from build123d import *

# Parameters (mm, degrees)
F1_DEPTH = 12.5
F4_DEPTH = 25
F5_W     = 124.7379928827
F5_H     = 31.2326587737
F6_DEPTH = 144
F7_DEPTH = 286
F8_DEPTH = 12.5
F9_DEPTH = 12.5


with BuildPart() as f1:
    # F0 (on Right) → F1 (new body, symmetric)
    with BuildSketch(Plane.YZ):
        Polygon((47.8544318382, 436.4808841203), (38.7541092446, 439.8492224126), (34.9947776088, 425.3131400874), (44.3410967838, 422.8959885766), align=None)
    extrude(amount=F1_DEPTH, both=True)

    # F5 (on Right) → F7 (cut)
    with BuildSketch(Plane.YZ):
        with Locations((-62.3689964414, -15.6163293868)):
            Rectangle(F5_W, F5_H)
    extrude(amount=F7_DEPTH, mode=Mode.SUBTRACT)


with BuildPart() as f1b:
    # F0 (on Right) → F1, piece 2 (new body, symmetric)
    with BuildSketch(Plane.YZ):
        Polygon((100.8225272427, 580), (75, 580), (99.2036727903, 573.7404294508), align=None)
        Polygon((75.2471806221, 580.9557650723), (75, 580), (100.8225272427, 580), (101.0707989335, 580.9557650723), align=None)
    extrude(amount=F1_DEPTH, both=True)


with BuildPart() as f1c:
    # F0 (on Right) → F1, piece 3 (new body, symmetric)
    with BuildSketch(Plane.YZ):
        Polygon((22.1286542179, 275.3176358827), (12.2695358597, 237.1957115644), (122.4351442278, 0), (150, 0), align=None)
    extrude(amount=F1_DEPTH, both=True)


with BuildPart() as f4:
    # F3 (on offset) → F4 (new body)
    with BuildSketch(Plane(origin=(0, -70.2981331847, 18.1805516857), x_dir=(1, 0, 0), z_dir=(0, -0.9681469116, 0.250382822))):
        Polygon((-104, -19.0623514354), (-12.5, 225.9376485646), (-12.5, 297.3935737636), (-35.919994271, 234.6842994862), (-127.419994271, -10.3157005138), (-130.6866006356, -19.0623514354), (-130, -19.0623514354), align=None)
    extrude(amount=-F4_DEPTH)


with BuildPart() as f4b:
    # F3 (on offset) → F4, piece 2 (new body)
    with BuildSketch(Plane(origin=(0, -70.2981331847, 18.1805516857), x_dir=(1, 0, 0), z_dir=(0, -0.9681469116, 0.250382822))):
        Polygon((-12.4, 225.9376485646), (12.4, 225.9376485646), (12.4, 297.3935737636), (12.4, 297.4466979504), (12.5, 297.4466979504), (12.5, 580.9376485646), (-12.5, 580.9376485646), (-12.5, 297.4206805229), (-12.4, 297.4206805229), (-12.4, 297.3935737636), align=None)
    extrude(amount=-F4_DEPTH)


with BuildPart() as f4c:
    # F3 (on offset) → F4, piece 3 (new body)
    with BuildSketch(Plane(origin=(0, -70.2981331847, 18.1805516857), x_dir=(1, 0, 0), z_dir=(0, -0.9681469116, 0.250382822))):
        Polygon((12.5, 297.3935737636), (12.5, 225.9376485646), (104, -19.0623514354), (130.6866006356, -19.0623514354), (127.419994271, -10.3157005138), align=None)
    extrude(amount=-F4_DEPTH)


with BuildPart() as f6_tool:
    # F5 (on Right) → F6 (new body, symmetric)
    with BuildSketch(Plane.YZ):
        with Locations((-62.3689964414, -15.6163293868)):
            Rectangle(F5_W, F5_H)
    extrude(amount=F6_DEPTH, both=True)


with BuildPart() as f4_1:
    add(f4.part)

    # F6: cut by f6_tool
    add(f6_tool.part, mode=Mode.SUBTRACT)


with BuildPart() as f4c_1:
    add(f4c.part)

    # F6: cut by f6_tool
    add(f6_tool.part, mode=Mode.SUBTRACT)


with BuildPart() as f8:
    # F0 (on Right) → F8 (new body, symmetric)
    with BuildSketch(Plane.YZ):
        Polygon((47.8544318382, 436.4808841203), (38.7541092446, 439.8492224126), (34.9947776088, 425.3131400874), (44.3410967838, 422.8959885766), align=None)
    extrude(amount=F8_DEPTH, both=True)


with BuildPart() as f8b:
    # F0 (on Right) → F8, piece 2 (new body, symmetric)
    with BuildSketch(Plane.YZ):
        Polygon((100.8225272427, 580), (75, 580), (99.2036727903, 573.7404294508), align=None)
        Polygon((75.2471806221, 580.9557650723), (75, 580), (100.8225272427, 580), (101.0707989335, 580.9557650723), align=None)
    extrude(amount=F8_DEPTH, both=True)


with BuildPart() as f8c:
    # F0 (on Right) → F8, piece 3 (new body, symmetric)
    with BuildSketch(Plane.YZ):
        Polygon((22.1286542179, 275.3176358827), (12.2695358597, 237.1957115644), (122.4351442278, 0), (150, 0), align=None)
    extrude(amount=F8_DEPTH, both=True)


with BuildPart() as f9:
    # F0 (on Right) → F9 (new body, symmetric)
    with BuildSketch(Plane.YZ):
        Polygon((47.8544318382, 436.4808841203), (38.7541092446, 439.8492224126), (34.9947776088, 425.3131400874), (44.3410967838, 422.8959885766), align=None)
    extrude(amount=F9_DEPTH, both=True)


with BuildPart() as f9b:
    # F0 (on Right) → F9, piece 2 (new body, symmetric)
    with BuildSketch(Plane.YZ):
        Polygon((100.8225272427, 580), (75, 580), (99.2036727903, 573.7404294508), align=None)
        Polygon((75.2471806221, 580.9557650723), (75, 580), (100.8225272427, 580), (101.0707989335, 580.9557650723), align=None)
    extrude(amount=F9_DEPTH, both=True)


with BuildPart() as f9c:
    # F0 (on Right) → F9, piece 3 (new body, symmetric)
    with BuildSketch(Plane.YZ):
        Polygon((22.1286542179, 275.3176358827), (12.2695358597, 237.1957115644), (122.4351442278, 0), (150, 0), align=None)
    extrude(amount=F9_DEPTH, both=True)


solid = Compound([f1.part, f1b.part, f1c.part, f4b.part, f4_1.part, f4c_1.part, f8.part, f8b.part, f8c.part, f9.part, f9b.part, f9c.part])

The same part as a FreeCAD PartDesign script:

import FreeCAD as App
import Part
import Sketcher
from FreeCAD import Vector
Q = App.Units.Quantity

doc = App.newDocument("Part")
body = doc.addObject("PartDesign::Body", "Body")

# Sketch on YZ plane
sketch1 = doc.addObject("Sketcher::SketchObject", "Sketch")
body.addObject(sketch1)
sketch1.AttachmentSupport = (doc.YZ_Plane, [""])
sketch1.MapMode = "FlatFace"
sketch1.addGeometry([
    Part.LineSegment(Vector(47.854432, 436.480884, 0), Vector(38.754109, 439.849222, 0)),
    Part.LineSegment(Vector(38.754109, 439.849222, 0), Vector(34.994778, 425.31314, 0)),
    Part.LineSegment(Vector(34.994778, 425.31314, 0), Vector(44.341097, 422.895989, 0)),
    Part.LineSegment(Vector(44.341097, 422.895989, 0), Vector(47.854432, 436.480884, 0)),
], False)
sketch1.addConstraint([
    Sketcher.Constraint("Coincident", 0, 2, 1, 1),
    Sketcher.Constraint("Coincident", 1, 2, 2, 1),
    Sketcher.Constraint("Coincident", 2, 2, 3, 1),
    Sketcher.Constraint("Coincident", 3, 2, 0, 1),
    Sketcher.Constraint("Perpendicular", 1, 2),
    Sketcher.Constraint("Perpendicular", 2, 3),
    Sketcher.Constraint("Distance", 0, Q("9.703689 mm")),
    Sketcher.Constraint("DistanceX", -1, 1, 0, 2, Q("38.754109 mm")),
    Sketcher.Constraint("DistanceY", -1, 1, 1, 2, Q("425.31314 mm")),
    Sketcher.Constraint("DistanceY", -1, 1, 2, 2, Q("422.895989 mm")),
    Sketcher.Constraint("DistanceX", -1, 1, 3, 2, Q("47.854432 mm")),
    Sketcher.Constraint("DistanceX", 1, 2, 0, 2, Q("3.759332 mm")),
])
pad1 = doc.addObject("PartDesign::Pad", "Pad")
body.addObject(pad1)
pad1.Profile = sketch1
pad1.Length = 25
pad1.Midplane = True

# Sketch on YZ plane
sketch2 = doc.addObject("Sketcher::SketchObject", "Sketch001")
body.addObject(sketch2)
sketch2.AttachmentSupport = (doc.YZ_Plane, [""])
sketch2.MapMode = "FlatFace"
sketch2.addGeometry([
    Part.LineSegment(Vector(-124.737993, 0, 0), Vector(-124.737993, -31.232659, 0)),
    Part.LineSegment(Vector(-124.737993, -31.232659, 0), Vector(0, -31.232659, 0)),
    Part.LineSegment(Vector(0, -31.232659, 0), Vector(0, 0, 0)),
    Part.LineSegment(Vector(0, 0, 0), Vector(-124.737993, 0, 0)),
], False)
sketch2.addConstraint([
    Sketcher.Constraint("Coincident", 0, 2, 1, 1),
    Sketcher.Constraint("Coincident", 1, 2, 2, 1),
    Sketcher.Constraint("Coincident", 2, 2, 3, 1),
    Sketcher.Constraint("Coincident", 3, 2, 0, 1),
    Sketcher.Constraint("Vertical", 0),
    Sketcher.Constraint("Horizontal", 1),
    Sketcher.Constraint("Vertical", 2),
    Sketcher.Constraint("Horizontal", 3),
    Sketcher.Constraint("Coincident", 2, 2, -1, 1),
    Sketcher.Constraint("DistanceY", 0, 2, 0, 1, Q("31.232659 mm")),
    Sketcher.Constraint("DistanceX", 1, 1, 1, 2, Q("124.737993 mm")),
])
pocket1 = doc.addObject("PartDesign::Pocket", "Pocket")
body.addObject(pocket1)
pocket1.Profile = sketch2
pocket1.Length = 286
pocket1.Reversed = True
body2 = doc.addObject("PartDesign::Body", "Body001")

# Sketch on YZ plane
sketch3 = doc.addObject("Sketcher::SketchObject", "Sketch002")
body2.addObject(sketch3)
sketch3.AttachmentSupport = (doc.getObject("YZ_Plane001"), [""])
sketch3.MapMode = "FlatFace"
sketch3.addGeometry([
    Part.LineSegment(Vector(75, 580, 0), Vector(99.203673, 573.740429, 0)),  # 0
    Part.LineSegment(Vector(99.203673, 573.740429, 0), Vector(100.822527, 580, 0)),  # 1
    Part.LineSegment(Vector(100.822527, 580, 0), Vector(101.070799, 580.955765, 0)),  # 2
    Part.LineSegment(Vector(101.070799, 580.955765, 0), Vector(75.247181, 580.955765, 0)),  # 3
    Part.LineSegment(Vector(75.247181, 580.955765, 0), Vector(75, 580, 0)),  # 4
], False)
sketch3.addConstraint([
    Sketcher.Constraint("Coincident", 0, 2, 1, 1),
    Sketcher.Constraint("Coincident", 1, 2, 2, 1),
    Sketcher.Constraint("Coincident", 2, 2, 3, 1),
    Sketcher.Constraint("Coincident", 3, 2, 4, 1),
    Sketcher.Constraint("Coincident", 4, 2, 0, 1),
    Sketcher.Constraint("Horizontal", 3),
    Sketcher.Constraint("Perpendicular", 0, 1),
    Sketcher.Constraint("Parallel", 1, 4),
    Sketcher.Constraint("Horizontal", 1, 2, 4, 2),
    Sketcher.Constraint("Distance", 0, Q("25 mm")),
    Sketcher.Constraint("DistanceY", -1, 1, 1, 2, Q("580 mm")),
    Sketcher.Constraint("DistanceX", -1, 1, 4, 2, Q("75 mm")),
    Sketcher.Constraint("DistanceX", 3, 2, 3, 1, Q("25.823618 mm")),
    Sketcher.Constraint("DistanceX", -1, 1, 2, 2, Q("101.070799 mm")),
    Sketcher.Constraint("Distance", 4, Q("0.987211 mm")),
])
pad2 = doc.addObject("PartDesign::Pad", "Pad001")
body2.addObject(pad2)
pad2.Profile = sketch3
pad2.Length = 25
pad2.Midplane = True
body3 = doc.addObject("PartDesign::Body", "Body002")

# Sketch on YZ plane
sketch4 = doc.addObject("Sketcher::SketchObject", "Sketch003")
body3.addObject(sketch4)
sketch4.AttachmentSupport = (doc.getObject("YZ_Plane002"), [""])
sketch4.MapMode = "FlatFace"
sketch4.addGeometry([
    Part.LineSegment(Vector(22.128654, 275.317636, 0), Vector(12.269536, 237.195712, 0)),
    Part.LineSegment(Vector(12.269536, 237.195712, 0), Vector(122.435144, 0, 0)),
    Part.LineSegment(Vector(122.435144, 0, 0), Vector(150, 0, 0)),
    Part.LineSegment(Vector(150, 0, 0), Vector(22.128654, 275.317636, 0)),
], False)
sketch4.addConstraint([
    Sketcher.Constraint("Coincident", 0, 2, 1, 1),
    Sketcher.Constraint("Coincident", 1, 2, 2, 1),
    Sketcher.Constraint("Coincident", 2, 2, 3, 1),
    Sketcher.Constraint("Coincident", 3, 2, 0, 1),
    Sketcher.Constraint("Horizontal", 2),
    Sketcher.Constraint("PointOnObject", 1, 2, -1),
    Sketcher.Constraint("Parallel", 1, 3),
    Sketcher.Constraint("DistanceX", -1, 1, 2, 2, Q("150 mm")),
    Sketcher.Constraint("DistanceX", 2, 1, 2, 2, Q("27.564856 mm")),
    Sketcher.Constraint("DistanceY", -1, 1, 0, 2, Q("237.195712 mm")),
    Sketcher.Constraint("DistanceX", 0, 2, 1, 2, Q("110.165608 mm")),
    Sketcher.Constraint("DistanceX", 0, 2, 3, 2, Q("9.859118 mm")),
])
pad3 = doc.addObject("PartDesign::Pad", "Pad002")
body3.addObject(pad3)
pad3.Profile = sketch4
pad3.Length = 25
pad3.Midplane = True
body4 = doc.addObject("PartDesign::Body", "Body003")

# Sketch on an angled plane
sketch5 = doc.addObject("Sketcher::SketchObject", "Sketch004")
body4.addObject(sketch5)
sketch5.Placement = App.Placement(Vector(0, -70.298133, 18.180552), App.Rotation(Vector(1, 0, 0), Vector(0, 0.250382822, 0.968146912), Vector(0, -0.968146912, 0.250382822), "ZXY"))
sketch5.addGeometry([
    Part.LineSegment(Vector(-104, -19.062351, 0), Vector(-12.5, 225.937649, 0)),
    Part.LineSegment(Vector(-12.5, 225.937649, 0), Vector(-12.5, 297.393574, 0)),
    Part.LineSegment(Vector(-12.5, 297.393574, 0), Vector(-130.686601, -19.062351, 0)),
    Part.LineSegment(Vector(-130.686601, -19.062351, 0), Vector(-104, -19.062351, 0)),
], False)
sketch5.addConstraint([
    Sketcher.Constraint("Coincident", 0, 2, 1, 1),
    Sketcher.Constraint("Coincident", 1, 2, 2, 1),
    Sketcher.Constraint("Coincident", 2, 2, 3, 1),
    Sketcher.Constraint("Coincident", 3, 2, 0, 1),
    Sketcher.Constraint("Vertical", 1),
    Sketcher.Constraint("Horizontal", 3),
    Sketcher.Constraint("Parallel", 0, 2),
    Sketcher.Constraint("DistanceX", 3, 2, -1, 1, Q("104 mm")),
    Sketcher.Constraint("DistanceY", 2, 2, 0, 2, Q("245 mm")),
    Sketcher.Constraint("DistanceX", 0, 2, -1, 1, Q("12.5 mm")),
    Sketcher.Constraint("DistanceX", 3, 1, 3, 2, Q("26.686601 mm")),
    Sketcher.Constraint("DistanceY", -1, 1, 0, 2, Q("225.937649 mm")),
])
pad4 = doc.addObject("PartDesign::Pad", "Pad003")
body4.addObject(pad4)
pad4.Profile = sketch5
pad4.Length = 25
pad4.Reversed = True
body5 = doc.addObject("PartDesign::Body", "Body004")

# Sketch on an angled plane
sketch6 = doc.addObject("Sketcher::SketchObject", "Sketch005")
body5.addObject(sketch6)
sketch6.Placement = App.Placement(Vector(0, -70.298133, 18.180552), App.Rotation(Vector(1, 0, 0), Vector(0, 0.250382822, 0.968146912), Vector(0, -0.968146912, 0.250382822), "ZXY"))
sketch6.addGeometry([
    Part.LineSegment(Vector(-12.4, 225.937649, 0), Vector(12.4, 225.937649, 0)),  # 0
    Part.LineSegment(Vector(12.4, 225.937649, 0), Vector(12.4, 297.446698, 0)),  # 1
    Part.LineSegment(Vector(12.4, 297.446698, 0), Vector(12.5, 297.446698, 0)),  # 2
    Part.LineSegment(Vector(12.5, 297.446698, 0), Vector(12.5, 580.937649, 0)),  # 3
    Part.LineSegment(Vector(12.5, 580.937649, 0), Vector(-12.5, 580.937649, 0)),  # 4
    Part.LineSegment(Vector(-12.5, 580.937649, 0), Vector(-12.5, 297.420681, 0)),  # 5
    Part.LineSegment(Vector(-12.5, 297.420681, 0), Vector(-12.4, 297.420681, 0)),  # 6
    Part.LineSegment(Vector(-12.4, 297.420681, 0), Vector(-12.4, 225.937649, 0)),  # 7
], False)
sketch6.addConstraint([
    Sketcher.Constraint("Coincident", 0, 2, 1, 1),
    Sketcher.Constraint("Coincident", 1, 2, 2, 1),
    Sketcher.Constraint("Coincident", 2, 2, 3, 1),
    Sketcher.Constraint("Coincident", 3, 2, 4, 1),
    Sketcher.Constraint("Coincident", 4, 2, 5, 1),
    Sketcher.Constraint("Coincident", 5, 2, 6, 1),
    Sketcher.Constraint("Coincident", 6, 2, 7, 1),
    Sketcher.Constraint("Coincident", 7, 2, 0, 1),
    Sketcher.Constraint("Horizontal", 0),
    Sketcher.Constraint("Vertical", 1),
    Sketcher.Constraint("Horizontal", 2),
    Sketcher.Constraint("Vertical", 3),
    Sketcher.Constraint("Horizontal", 4),
    Sketcher.Constraint("Vertical", 5),
    Sketcher.Constraint("Horizontal", 6),
    Sketcher.Constraint("Vertical", 7),
    Sketcher.Constraint("Equal", 2, 6),
    Sketcher.Constraint("DistanceX", 4, 2, 4, 1, Q("25 mm")),
    Sketcher.Constraint("DistanceX", 0, 1, 0, 2, Q("24.8 mm")),
    Sketcher.Constraint("DistanceY", 0, 2, 3, 2, Q("355 mm")),
    Sketcher.Constraint("DistanceX", -1, 1, 0, 2, Q("12.4 mm")),
    Sketcher.Constraint("DistanceY", 1, 1, 1, 2, Q("71.509049 mm")),
    Sketcher.Constraint("DistanceY", 5, 2, 5, 1, Q("283.516968 mm")),
    Sketcher.Constraint("DistanceY", -1, 1, 1, 2, Q("297.446698 mm")),
])
pad5 = doc.addObject("PartDesign::Pad", "Pad004")
body5.addObject(pad5)
pad5.Profile = sketch6
pad5.Length = 25
pad5.Reversed = True
body6 = doc.addObject("PartDesign::Body", "Body005")

# Sketch on an angled plane
sketch7 = doc.addObject("Sketcher::SketchObject", "Sketch006")
body6.addObject(sketch7)
sketch7.Placement = App.Placement(Vector(0, -70.298133, 18.180552), App.Rotation(Vector(1, 0, 0), Vector(0, 0.250382822, 0.968146912), Vector(0, -0.968146912, 0.250382822), "ZXY"))
sketch7.addGeometry([
    Part.LineSegment(Vector(12.5, 297.393574, 0), Vector(12.5, 225.937649, 0)),
    Part.LineSegment(Vector(12.5, 225.937649, 0), Vector(104, -19.062351, 0)),
    Part.LineSegment(Vector(104, -19.062351, 0), Vector(130.686601, -19.062351, 0)),
    Part.LineSegment(Vector(130.686601, -19.062351, 0), Vector(12.5, 297.393574, 0)),
], False)
sketch7.addConstraint([
    Sketcher.Constraint("Coincident", 0, 2, 1, 1),
    Sketcher.Constraint("Coincident", 1, 2, 2, 1),
    Sketcher.Constraint("Coincident", 2, 2, 3, 1),
    Sketcher.Constraint("Coincident", 3, 2, 0, 1),
    Sketcher.Constraint("Vertical", 0),
    Sketcher.Constraint("Horizontal", 2),
    Sketcher.Constraint("Parallel", 1, 3),
    Sketcher.Constraint("DistanceX", -1, 1, 1, 2, Q("104 mm")),
    Sketcher.Constraint("DistanceY", 1, 2, 0, 2, Q("245 mm")),
    Sketcher.Constraint("DistanceX", -1, 1, 0, 2, Q("12.5 mm")),
    Sketcher.Constraint("DistanceX", 2, 1, 2, 2, Q("26.686601 mm")),
    Sketcher.Constraint("DistanceY", -1, 1, 0, 2, Q("225.937649 mm")),
])
pad6 = doc.addObject("PartDesign::Pad", "Pad005")
body6.addObject(pad6)
pad6.Profile = sketch7
pad6.Length = 25
pad6.Reversed = True
body7 = doc.addObject("PartDesign::Body", "Body006")

# Sketch on YZ plane
sketch8 = doc.addObject("Sketcher::SketchObject", "Sketch007")
body7.addObject(sketch8)
sketch8.AttachmentSupport = (doc.getObject("YZ_Plane006"), [""])
sketch8.MapMode = "FlatFace"
sketch8.addGeometry([
    Part.LineSegment(Vector(-124.737993, 0, 0), Vector(-124.737993, -31.232659, 0)),
    Part.LineSegment(Vector(-124.737993, -31.232659, 0), Vector(0, -31.232659, 0)),
    Part.LineSegment(Vector(0, -31.232659, 0), Vector(0, 0, 0)),
    Part.LineSegment(Vector(0, 0, 0), Vector(-124.737993, 0, 0)),
], False)
sketch8.addConstraint([
    Sketcher.Constraint("Coincident", 0, 2, 1, 1),
    Sketcher.Constraint("Coincident", 1, 2, 2, 1),
    Sketcher.Constraint("Coincident", 2, 2, 3, 1),
    Sketcher.Constraint("Coincident", 3, 2, 0, 1),
    Sketcher.Constraint("Vertical", 0),
    Sketcher.Constraint("Horizontal", 1),
    Sketcher.Constraint("Vertical", 2),
    Sketcher.Constraint("Horizontal", 3),
    Sketcher.Constraint("Coincident", 2, 2, -1, 1),
    Sketcher.Constraint("DistanceY", 0, 2, 0, 1, Q("31.232659 mm")),
    Sketcher.Constraint("DistanceX", 1, 1, 1, 2, Q("124.737993 mm")),
])
pad7 = doc.addObject("PartDesign::Pad", "Pad006")
body7.addObject(pad7)
pad7.Profile = sketch8
pad7.Length = 288
pad7.Midplane = True
doc.recompute()

body8 = doc.addObject("PartDesign::Body", "Body007")
body8.BaseFeature = body7
boolean = doc.addObject("PartDesign::Boolean", "Boolean")
body4.addObject(boolean)
boolean.Type = "Cut"
boolean.addObjects([body8])
doc.recompute()

boolean2 = doc.addObject("PartDesign::Boolean", "Boolean001")
body6.addObject(boolean2)
boolean2.Type = "Cut"
boolean2.addObjects([body7])
body9 = doc.addObject("PartDesign::Body", "Body008")

# Sketch on YZ plane
sketch9 = doc.addObject("Sketcher::SketchObject", "Sketch008")
body9.addObject(sketch9)
sketch9.AttachmentSupport = (doc.getObject("YZ_Plane008"), [""])
sketch9.MapMode = "FlatFace"
sketch9.addGeometry([
    Part.LineSegment(Vector(47.854432, 436.480884, 0), Vector(38.754109, 439.849222, 0)),
    Part.LineSegment(Vector(38.754109, 439.849222, 0), Vector(34.994778, 425.31314, 0)),
    Part.LineSegment(Vector(34.994778, 425.31314, 0), Vector(44.341097, 422.895989, 0)),
    Part.LineSegment(Vector(44.341097, 422.895989, 0), Vector(47.854432, 436.480884, 0)),
], False)
sketch9.addConstraint([
    Sketcher.Constraint("Coincident", 0, 2, 1, 1),
    Sketcher.Constraint("Coincident", 1, 2, 2, 1),
    Sketcher.Constraint("Coincident", 2, 2, 3, 1),
    Sketcher.Constraint("Coincident", 3, 2, 0, 1),
    Sketcher.Constraint("Perpendicular", 1, 2),
    Sketcher.Constraint("Perpendicular", 2, 3),
    Sketcher.Constraint("Distance", 0, Q("9.703689 mm")),
    Sketcher.Constraint("DistanceX", -1, 1, 0, 2, Q("38.754109 mm")),
    Sketcher.Constraint("DistanceY", -1, 1, 1, 2, Q("425.31314 mm")),
    Sketcher.Constraint("DistanceY", -1, 1, 2, 2, Q("422.895989 mm")),
    Sketcher.Constraint("DistanceX", -1, 1, 3, 2, Q("47.854432 mm")),
    Sketcher.Constraint("DistanceX", 1, 2, 0, 2, Q("3.759332 mm")),
])
pad8 = doc.addObject("PartDesign::Pad", "Pad007")
body9.addObject(pad8)
pad8.Profile = sketch9
pad8.Length = 25
pad8.Midplane = True
body10 = doc.addObject("PartDesign::Body", "Body009")

# Sketch on YZ plane
sketch10 = doc.addObject("Sketcher::SketchObject", "Sketch009")
body10.addObject(sketch10)
sketch10.AttachmentSupport = (doc.getObject("YZ_Plane009"), [""])
sketch10.MapMode = "FlatFace"
sketch10.addGeometry([
    Part.LineSegment(Vector(75, 580, 0), Vector(99.203673, 573.740429, 0)),  # 0
    Part.LineSegment(Vector(99.203673, 573.740429, 0), Vector(100.822527, 580, 0)),  # 1
    Part.LineSegment(Vector(100.822527, 580, 0), Vector(101.070799, 580.955765, 0)),  # 2
    Part.LineSegment(Vector(101.070799, 580.955765, 0), Vector(75.247181, 580.955765, 0)),  # 3
    Part.LineSegment(Vector(75.247181, 580.955765, 0), Vector(75, 580, 0)),  # 4
], False)
sketch10.addConstraint([
    Sketcher.Constraint("Coincident", 0, 2, 1, 1),
    Sketcher.Constraint("Coincident", 1, 2, 2, 1),
    Sketcher.Constraint("Coincident", 2, 2, 3, 1),
    Sketcher.Constraint("Coincident", 3, 2, 4, 1),
    Sketcher.Constraint("Coincident", 4, 2, 0, 1),
    Sketcher.Constraint("Horizontal", 3),
    Sketcher.Constraint("Perpendicular", 0, 1),
    Sketcher.Constraint("Parallel", 1, 4),
    Sketcher.Constraint("Horizontal", 1, 2, 4, 2),
    Sketcher.Constraint("Distance", 0, Q("25 mm")),
    Sketcher.Constraint("DistanceY", -1, 1, 1, 2, Q("580 mm")),
    Sketcher.Constraint("DistanceX", -1, 1, 4, 2, Q("75 mm")),
    Sketcher.Constraint("DistanceX", 3, 2, 3, 1, Q("25.823618 mm")),
    Sketcher.Constraint("DistanceX", -1, 1, 2, 2, Q("101.070799 mm")),
    Sketcher.Constraint("Distance", 4, Q("0.987211 mm")),
])
pad9 = doc.addObject("PartDesign::Pad", "Pad008")
body10.addObject(pad9)
pad9.Profile = sketch10
pad9.Length = 25
pad9.Midplane = True
body11 = doc.addObject("PartDesign::Body", "Body010")

# Sketch on YZ plane
sketch11 = doc.addObject("Sketcher::SketchObject", "Sketch010")
body11.addObject(sketch11)
sketch11.AttachmentSupport = (doc.getObject("YZ_Plane010"), [""])
sketch11.MapMode = "FlatFace"
sketch11.addGeometry([
    Part.LineSegment(Vector(22.128654, 275.317636, 0), Vector(12.269536, 237.195712, 0)),
    Part.LineSegment(Vector(12.269536, 237.195712, 0), Vector(122.435144, 0, 0)),
    Part.LineSegment(Vector(122.435144, 0, 0), Vector(150, 0, 0)),
    Part.LineSegment(Vector(150, 0, 0), Vector(22.128654, 275.317636, 0)),
], False)
sketch11.addConstraint([
    Sketcher.Constraint("Coincident", 0, 2, 1, 1),
    Sketcher.Constraint("Coincident", 1, 2, 2, 1),
    Sketcher.Constraint("Coincident", 2, 2, 3, 1),
    Sketcher.Constraint("Coincident", 3, 2, 0, 1),
    Sketcher.Constraint("Horizontal", 2),
    Sketcher.Constraint("PointOnObject", 1, 2, -1),
    Sketcher.Constraint("Parallel", 1, 3),
    Sketcher.Constraint("DistanceX", -1, 1, 2, 2, Q("150 mm")),
    Sketcher.Constraint("DistanceX", 2, 1, 2, 2, Q("27.564856 mm")),
    Sketcher.Constraint("DistanceY", -1, 1, 0, 2, Q("237.195712 mm")),
    Sketcher.Constraint("DistanceX", 0, 2, 1, 2, Q("110.165608 mm")),
    Sketcher.Constraint("DistanceX", 0, 2, 3, 2, Q("9.859118 mm")),
])
pad10 = doc.addObject("PartDesign::Pad", "Pad009")
body11.addObject(pad10)
pad10.Profile = sketch11
pad10.Length = 25
pad10.Midplane = True
body12 = doc.addObject("PartDesign::Body", "Body011")

# Sketch on YZ plane
sketch12 = doc.addObject("Sketcher::SketchObject", "Sketch011")
body12.addObject(sketch12)
sketch12.AttachmentSupport = (doc.getObject("YZ_Plane011"), [""])
sketch12.MapMode = "FlatFace"
sketch12.addGeometry([
    Part.LineSegment(Vector(47.854432, 436.480884, 0), Vector(38.754109, 439.849222, 0)),
    Part.LineSegment(Vector(38.754109, 439.849222, 0), Vector(34.994778, 425.31314, 0)),
    Part.LineSegment(Vector(34.994778, 425.31314, 0), Vector(44.341097, 422.895989, 0)),
    Part.LineSegment(Vector(44.341097, 422.895989, 0), Vector(47.854432, 436.480884, 0)),
], False)
sketch12.addConstraint([
    Sketcher.Constraint("Coincident", 0, 2, 1, 1),
    Sketcher.Constraint("Coincident", 1, 2, 2, 1),
    Sketcher.Constraint("Coincident", 2, 2, 3, 1),
    Sketcher.Constraint("Coincident", 3, 2, 0, 1),
    Sketcher.Constraint("Perpendicular", 1, 2),
    Sketcher.Constraint("Perpendicular", 2, 3),
    Sketcher.Constraint("Distance", 0, Q("9.703689 mm")),
    Sketcher.Constraint("DistanceX", -1, 1, 0, 2, Q("38.754109 mm")),
    Sketcher.Constraint("DistanceY", -1, 1, 1, 2, Q("425.31314 mm")),
    Sketcher.Constraint("DistanceY", -1, 1, 2, 2, Q("422.895989 mm")),
    Sketcher.Constraint("DistanceX", -1, 1, 3, 2, Q("47.854432 mm")),
    Sketcher.Constraint("DistanceX", 1, 2, 0, 2, Q("3.759332 mm")),
])
pad11 = doc.addObject("PartDesign::Pad", "Pad010")
body12.addObject(pad11)
pad11.Profile = sketch12
pad11.Length = 25
pad11.Midplane = True
body13 = doc.addObject("PartDesign::Body", "Body012")

# Sketch on YZ plane
sketch13 = doc.addObject("Sketcher::SketchObject", "Sketch012")
body13.addObject(sketch13)
sketch13.AttachmentSupport = (doc.getObject("YZ_Plane012"), [""])
sketch13.MapMode = "FlatFace"
sketch13.addGeometry([
    Part.LineSegment(Vector(75, 580, 0), Vector(99.203673, 573.740429, 0)),  # 0
    Part.LineSegment(Vector(99.203673, 573.740429, 0), Vector(100.822527, 580, 0)),  # 1
    Part.LineSegment(Vector(100.822527, 580, 0), Vector(101.070799, 580.955765, 0)),  # 2
    Part.LineSegment(Vector(101.070799, 580.955765, 0), Vector(75.247181, 580.955765, 0)),  # 3
    Part.LineSegment(Vector(75.247181, 580.955765, 0), Vector(75, 580, 0)),  # 4
], False)
sketch13.addConstraint([
    Sketcher.Constraint("Coincident", 0, 2, 1, 1),
    Sketcher.Constraint("Coincident", 1, 2, 2, 1),
    Sketcher.Constraint("Coincident", 2, 2, 3, 1),
    Sketcher.Constraint("Coincident", 3, 2, 4, 1),
    Sketcher.Constraint("Coincident", 4, 2, 0, 1),
    Sketcher.Constraint("Horizontal", 3),
    Sketcher.Constraint("Perpendicular", 0, 1),
    Sketcher.Constraint("Parallel", 1, 4),
    Sketcher.Constraint("Horizontal", 1, 2, 4, 2),
    Sketcher.Constraint("Distance", 0, Q("25 mm")),
    Sketcher.Constraint("DistanceY", -1, 1, 1, 2, Q("580 mm")),
    Sketcher.Constraint("DistanceX", -1, 1, 4, 2, Q("75 mm")),
    Sketcher.Constraint("DistanceX", 3, 2, 3, 1, Q("25.823618 mm")),
    Sketcher.Constraint("DistanceX", -1, 1, 2, 2, Q("101.070799 mm")),
    Sketcher.Constraint("Distance", 4, Q("0.987211 mm")),
])
pad12 = doc.addObject("PartDesign::Pad", "Pad011")
body13.addObject(pad12)
pad12.Profile = sketch13
pad12.Length = 25
pad12.Midplane = True
body14 = doc.addObject("PartDesign::Body", "Body013")

# Sketch on YZ plane
sketch14 = doc.addObject("Sketcher::SketchObject", "Sketch013")
body14.addObject(sketch14)
sketch14.AttachmentSupport = (doc.getObject("YZ_Plane013"), [""])
sketch14.MapMode = "FlatFace"
sketch14.addGeometry([
    Part.LineSegment(Vector(22.128654, 275.317636, 0), Vector(12.269536, 237.195712, 0)),
    Part.LineSegment(Vector(12.269536, 237.195712, 0), Vector(122.435144, 0, 0)),
    Part.LineSegment(Vector(122.435144, 0, 0), Vector(150, 0, 0)),
    Part.LineSegment(Vector(150, 0, 0), Vector(22.128654, 275.317636, 0)),
], False)
sketch14.addConstraint([
    Sketcher.Constraint("Coincident", 0, 2, 1, 1),
    Sketcher.Constraint("Coincident", 1, 2, 2, 1),
    Sketcher.Constraint("Coincident", 2, 2, 3, 1),
    Sketcher.Constraint("Coincident", 3, 2, 0, 1),
    Sketcher.Constraint("Horizontal", 2),
    Sketcher.Constraint("PointOnObject", 1, 2, -1),
    Sketcher.Constraint("Parallel", 1, 3),
    Sketcher.Constraint("DistanceX", -1, 1, 2, 2, Q("150 mm")),
    Sketcher.Constraint("DistanceX", 2, 1, 2, 2, Q("27.564856 mm")),
    Sketcher.Constraint("DistanceY", -1, 1, 0, 2, Q("237.195712 mm")),
    Sketcher.Constraint("DistanceX", 0, 2, 1, 2, Q("110.165608 mm")),
    Sketcher.Constraint("DistanceX", 0, 2, 3, 2, Q("9.859118 mm")),
])
pad13 = doc.addObject("PartDesign::Pad", "Pad012")
body14.addObject(pad13)
pad13.Profile = sketch14
pad13.Length = 25
pad13.Midplane = True

doc.recompute()
